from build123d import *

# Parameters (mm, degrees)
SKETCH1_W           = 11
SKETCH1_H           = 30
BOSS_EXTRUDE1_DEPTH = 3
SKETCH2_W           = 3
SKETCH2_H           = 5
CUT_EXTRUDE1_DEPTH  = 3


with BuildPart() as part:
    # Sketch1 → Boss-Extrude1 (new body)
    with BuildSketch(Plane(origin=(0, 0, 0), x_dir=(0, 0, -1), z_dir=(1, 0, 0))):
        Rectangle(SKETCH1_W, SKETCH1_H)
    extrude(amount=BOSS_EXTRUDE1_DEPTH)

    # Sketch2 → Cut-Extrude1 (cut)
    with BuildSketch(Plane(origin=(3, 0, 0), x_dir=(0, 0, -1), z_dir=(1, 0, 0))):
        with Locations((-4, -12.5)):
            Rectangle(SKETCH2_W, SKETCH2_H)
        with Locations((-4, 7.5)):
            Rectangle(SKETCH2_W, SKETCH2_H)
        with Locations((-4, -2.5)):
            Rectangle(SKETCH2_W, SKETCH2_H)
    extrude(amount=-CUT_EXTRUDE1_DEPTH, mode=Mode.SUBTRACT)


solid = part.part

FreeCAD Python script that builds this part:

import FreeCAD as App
import Part
import Sketcher


def add_polygon(sketch, points):
    """Adds a closed chain of lines whose ends are joined by coincident constraints."""
    first, n = sketch.GeometryCount, len(points)
    for a, b in zip(points, points[1:] + points[:1]):
        sketch.addGeometry(Part.LineSegment(App.Vector(*a, 0), App.Vector(*b, 0)), False)
    for i in range(n):
        sketch.addConstraint(Sketcher.Constraint("Coincident", first + i, 2, first + (i + 1) % n, 1))

doc = App.newDocument("Part")
body = doc.addObject("PartDesign::Body", "Body")

sketch1 = body.newObject("Sketcher::SketchObject", "Sketch")
sketch1.AttachmentSupport = (doc.getObject("YZ_Plane"), [""])
sketch1.MapMode = "FlatFace"
add_polygon(sketch1, [(15, 6), (-15, 6), (-15, -6), (15, -6)])
sketch1.addConstraint(Sketcher.Constraint("Horizontal", 0))
sketch1.addConstraint(Sketcher.Constraint("Vertical", 1))
sketch1.addConstraint(Sketcher.Constraint("Horizontal", 2))
sketch1.addConstraint(Sketcher.Constraint("Vertical", 3))
sketch1.addConstraint(Sketcher.Constraint("Symmetric", 0, 2, 2, 2, -1, 1))
sketch1.addConstraint(Sketcher.Constraint("DistanceX", 0, 2, 0, 1, 30.0))
sketch1.addConstraint(Sketcher.Constraint("DistanceY", 1, 2, 1, 1, 11.0))
pad1 = body.newObject("PartDesign::Pad", "Pad")
pad1.Profile = sketch1
pad1.Length = 3

sketch2 = body.newObject("Sketcher::SketchObject", "Sketch001")
sketch2.AttachmentSupport = (doc.getObject("YZ_Plane"), [""])
sketch2.MapMode = "FlatFace"
sketch2.AttachmentOffset = App.Placement(App.Vector(0, 0, 3), App.Rotation())
add_polygon(sketch2, [(-10, 5.5), (-15, 5.5), (-15, 2.5), (-10, 2.5)])
add_polygon(sketch2, [(10, 5.5), (5, 5.5), (5, 2.5), (10, 2.5)])
add_polygon(sketch2, [(0, 5.5), (-5, 5.5), (-5, 2.5), (0, 2.5)])
sketch2.addConstraint(Sketcher.Constraint("Horizontal", 0))
sketch2.addConstraint(Sketcher.Constraint("Vertical", 1))
sketch2.addConstraint(Sketcher.Constraint("Horizontal", 2))
sketch2.addConstraint(Sketcher.Constraint("Vertical", 3))
sketch2.addConstraint(Sketcher.Constraint("Horizontal", 4))
sketch2.addConstraint(Sketcher.Constraint("Vertical", 5))
sketch2.addConstraint(Sketcher.Constraint("Horizontal", 6))
sketch2.addConstraint(Sketcher.Constraint("Vertical", 7))
sketch2.addConstraint(Sketcher.Constraint("Horizontal", 8))
sketch2.addConstraint(Sketcher.Constraint("Vertical", 9))
sketch2.addConstraint(Sketcher.Constraint("Horizontal", 10))
sketch2.addConstraint(Sketcher.Constraint("Vertical", 11))
sketch2.addConstraint(Sketcher.Constraint("Symmetric", 2, 2, 6, 2, -2))
sketch2.addConstraint(Sketcher.Constraint("Symmetric", 4, 2, 8, 2, -2))
sketch2.addConstraint(Sketcher.Constraint("PointOnObject", 10, 2, -2))
sketch2.addConstraint(Sketcher.Constraint("Horizontal", 3, 2, 4, 2))
sketch2.addConstraint(Sketcher.Constraint("Horizontal", 6, 2, 9, 2))
sketch2.addConstraint(Sketcher.Constraint("Equal", 2, 4))
sketch2.addConstraint(Sketcher.Constraint("Equal", 6, 8))
sketch2.addConstraint(Sketcher.Constraint("DistanceX", 0, 2, 0, 1, 5.0))
sketch2.addConstraint(Sketcher.Constraint("DistanceY", 1, 2, 1, 1, 3.0))
sketch2.addConstraint(Sketcher.Constraint("DistanceY", -1, 1, 0, 2, 5.5))
pocket1 = body.newObject("PartDesign::Pocket", "Pocket")
pocket1.Profile = sketch2
pocket1.Length = 3

doc.recompute()
